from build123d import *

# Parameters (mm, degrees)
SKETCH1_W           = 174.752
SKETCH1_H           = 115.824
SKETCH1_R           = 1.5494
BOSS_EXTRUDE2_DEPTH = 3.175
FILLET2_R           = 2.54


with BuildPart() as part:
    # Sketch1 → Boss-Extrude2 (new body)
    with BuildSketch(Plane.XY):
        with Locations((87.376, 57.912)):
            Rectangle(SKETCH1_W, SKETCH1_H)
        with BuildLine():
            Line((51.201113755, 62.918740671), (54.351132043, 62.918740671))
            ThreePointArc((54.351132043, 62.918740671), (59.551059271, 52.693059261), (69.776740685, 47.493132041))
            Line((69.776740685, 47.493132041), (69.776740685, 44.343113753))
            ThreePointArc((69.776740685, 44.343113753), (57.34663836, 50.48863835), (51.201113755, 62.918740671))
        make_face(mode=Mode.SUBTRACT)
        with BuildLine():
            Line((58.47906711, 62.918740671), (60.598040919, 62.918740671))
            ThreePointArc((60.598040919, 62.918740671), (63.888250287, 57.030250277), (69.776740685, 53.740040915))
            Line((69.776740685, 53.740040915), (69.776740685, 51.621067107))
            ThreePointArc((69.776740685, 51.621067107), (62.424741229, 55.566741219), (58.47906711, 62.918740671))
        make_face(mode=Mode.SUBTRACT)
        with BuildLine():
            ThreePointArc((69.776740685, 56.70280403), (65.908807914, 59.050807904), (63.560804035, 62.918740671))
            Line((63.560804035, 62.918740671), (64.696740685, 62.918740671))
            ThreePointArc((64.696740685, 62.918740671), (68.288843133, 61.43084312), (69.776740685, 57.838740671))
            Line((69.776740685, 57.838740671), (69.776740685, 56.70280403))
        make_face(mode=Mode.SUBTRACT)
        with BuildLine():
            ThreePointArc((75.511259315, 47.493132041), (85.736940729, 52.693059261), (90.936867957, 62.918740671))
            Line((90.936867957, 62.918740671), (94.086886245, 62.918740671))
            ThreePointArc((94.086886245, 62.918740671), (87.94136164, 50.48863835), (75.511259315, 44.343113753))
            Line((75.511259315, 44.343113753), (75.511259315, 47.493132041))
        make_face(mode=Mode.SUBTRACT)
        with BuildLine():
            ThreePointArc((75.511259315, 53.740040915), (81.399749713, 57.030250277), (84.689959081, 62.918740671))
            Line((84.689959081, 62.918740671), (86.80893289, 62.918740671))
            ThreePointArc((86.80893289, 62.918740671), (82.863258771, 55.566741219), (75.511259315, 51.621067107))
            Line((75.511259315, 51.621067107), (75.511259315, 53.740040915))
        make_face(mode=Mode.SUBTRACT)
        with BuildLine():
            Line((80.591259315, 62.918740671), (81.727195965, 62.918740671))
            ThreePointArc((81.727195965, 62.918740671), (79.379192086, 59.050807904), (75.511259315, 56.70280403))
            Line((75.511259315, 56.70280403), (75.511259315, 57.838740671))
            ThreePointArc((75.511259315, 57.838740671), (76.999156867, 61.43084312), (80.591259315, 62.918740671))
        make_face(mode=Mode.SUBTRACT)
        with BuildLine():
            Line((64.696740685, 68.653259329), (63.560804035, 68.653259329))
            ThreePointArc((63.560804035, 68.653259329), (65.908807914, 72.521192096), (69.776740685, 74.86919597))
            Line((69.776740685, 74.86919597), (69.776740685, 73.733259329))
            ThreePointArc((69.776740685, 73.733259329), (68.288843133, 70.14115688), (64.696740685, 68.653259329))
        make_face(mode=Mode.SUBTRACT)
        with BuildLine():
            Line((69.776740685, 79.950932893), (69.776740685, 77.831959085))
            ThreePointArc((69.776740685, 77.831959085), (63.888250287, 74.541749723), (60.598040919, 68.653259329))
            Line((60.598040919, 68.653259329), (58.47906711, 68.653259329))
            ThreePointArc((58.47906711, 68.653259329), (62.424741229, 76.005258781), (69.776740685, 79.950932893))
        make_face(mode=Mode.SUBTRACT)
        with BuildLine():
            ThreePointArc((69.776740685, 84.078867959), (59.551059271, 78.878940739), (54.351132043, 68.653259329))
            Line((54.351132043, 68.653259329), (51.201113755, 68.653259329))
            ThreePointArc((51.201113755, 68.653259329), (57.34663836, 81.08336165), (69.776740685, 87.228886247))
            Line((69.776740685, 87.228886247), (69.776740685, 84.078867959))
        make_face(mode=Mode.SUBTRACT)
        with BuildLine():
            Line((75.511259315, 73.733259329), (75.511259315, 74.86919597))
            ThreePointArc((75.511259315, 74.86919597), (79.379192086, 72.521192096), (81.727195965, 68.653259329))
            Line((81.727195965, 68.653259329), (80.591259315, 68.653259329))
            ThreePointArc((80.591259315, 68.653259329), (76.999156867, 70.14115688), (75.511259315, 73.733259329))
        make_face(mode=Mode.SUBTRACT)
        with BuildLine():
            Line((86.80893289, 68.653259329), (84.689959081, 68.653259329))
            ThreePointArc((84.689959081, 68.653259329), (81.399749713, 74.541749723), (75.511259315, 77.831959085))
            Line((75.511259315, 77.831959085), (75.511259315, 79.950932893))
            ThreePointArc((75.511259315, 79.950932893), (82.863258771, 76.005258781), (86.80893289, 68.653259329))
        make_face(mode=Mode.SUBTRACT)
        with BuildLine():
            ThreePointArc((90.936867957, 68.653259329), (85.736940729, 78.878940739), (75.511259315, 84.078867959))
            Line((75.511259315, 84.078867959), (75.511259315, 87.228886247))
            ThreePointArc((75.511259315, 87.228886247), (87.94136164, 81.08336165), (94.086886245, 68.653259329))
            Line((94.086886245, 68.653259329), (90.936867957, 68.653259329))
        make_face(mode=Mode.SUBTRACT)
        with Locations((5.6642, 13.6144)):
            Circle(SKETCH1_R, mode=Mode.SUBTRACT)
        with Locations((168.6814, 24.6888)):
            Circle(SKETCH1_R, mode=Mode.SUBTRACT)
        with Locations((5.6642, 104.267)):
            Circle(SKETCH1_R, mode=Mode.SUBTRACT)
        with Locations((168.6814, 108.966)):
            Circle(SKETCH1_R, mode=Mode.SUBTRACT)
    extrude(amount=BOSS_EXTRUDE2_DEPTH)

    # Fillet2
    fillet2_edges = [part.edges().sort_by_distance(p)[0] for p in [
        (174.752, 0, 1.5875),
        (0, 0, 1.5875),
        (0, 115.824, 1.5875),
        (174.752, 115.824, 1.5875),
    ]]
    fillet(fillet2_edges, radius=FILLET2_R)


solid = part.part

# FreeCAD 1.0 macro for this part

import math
import FreeCAD as App
import Part
import Sketcher
from FreeCAD import Vector
Q = App.Units.Quantity


def edges_at(feature, points):
    """Names of the edges that pass closest to the given points."""
    edges = feature.Shape.Edges
    near = lambda p: min(range(len(edges)), key=lambda i: edges[i].distToShape(Part.Vertex(*p))[0])
    return sorted({f"Edge{near(p) + 1}" for p in points})

doc = App.newDocument("Part")
params = doc.addObject("Spreadsheet::Sheet", "Params")
for row, (alias, value) in enumerate([
    ("sketch1_radius", "0.2 in"),
    ("sketch1_radius2", "0.2 in"),
    ("sketch1_radius3", "0.2 in"),
    ("sketch1_radius4", "0.2 in"),
    ("sketch1_diameter", "0.122 in"),
    ("pad1_length", "0.125 in"),
    ("fillet_radius", "0.1 in"),
], start=1):
    params.set(f"A{row}", alias)
    params.set(f"B{row}", "=" + value)
    params.setAlias(f"B{row}", alias)

body = doc.addObject("PartDesign::Body", "Body")

sketch1 = doc.addObject("Sketcher::SketchObject", "Sketch")
body.addObject(sketch1)
sketch1.AttachmentSupport = (doc.XY_Plane, [""])
sketch1.MapMode = "FlatFace"
sketch1.addGeometry([
    Part.LineSegment(Vector(0, 115.824, 0), Vector(0, 0, 0)),
    Part.LineSegment(Vector(0, 0, 0), Vector(174.752, 0, 0)),
    Part.LineSegment(Vector(174.752, 0, 0), Vector(174.752, 115.824, 0)),
    Part.LineSegment(Vector(174.752, 115.824, 0), Vector(0, 115.824, 0)),
    Part.Circle(Vector(5.6642, 13.6144, 0), Vector(0, 0, 1), 1.5494),
    Part.ArcOfCircle(Part.Circle(Vector(72.644, 65.786, 0), Vector(0, 0, 1), 21.633736), math.radians(-172.383809), math.radians(-97.616191)),
    Part.LineSegment(Vector(51.201114, 62.918741, 0), Vector(54.351132, 62.918741, 0)),
    Part.ArcOfCircle(Part.Circle(Vector(72.644, 65.786, 0), Vector(0, 0, 1), 18.516214), math.radians(-171.091829), math.radians(-98.908171)),
    Part.LineSegment(Vector(69.776741, 47.493132, 0), Vector(69.776741, 44.343114, 0)),
    Part.ArcOfCircle(Part.Circle(Vector(72.644, 65.786, 0), Vector(0, 0, 1), 14.452214), math.radians(-168.556832), math.radians(-101.443168)),
    Part.LineSegment(Vector(58.479067, 62.918741, 0), Vector(60.598041, 62.918741, 0)),
    Part.ArcOfCircle(Part.Circle(Vector(72.644, 65.786, 0), Vector(0, 0, 1), 12.3825), math.radians(-166.611221), math.radians(-103.388779)),
    Part.LineSegment(Vector(69.776741, 53.740041, 0), Vector(69.776741, 51.621067, 0)),
    Part.LineSegment(Vector(75.511259, 44.343114, 0), Vector(75.511259, 47.493132, 0)),
    Part.ArcOfCircle(Part.Circle(Vector(72.644, 65.786, 0), Vector(0, 0, 1), 18.516214), math.radians(-81.091829), math.radians(-8.908171)),
    Part.LineSegment(Vector(90.936868, 62.918741, 0), Vector(94.086886, 62.918741, 0)),
    Part.ArcOfCircle(Part.Circle(Vector(72.644, 65.786, 0), Vector(0, 0, 1), 21.633736), math.radians(-82.383809), math.radians(-7.616191)),
    Part.LineSegment(Vector(69.776741, 57.838741, 0), Vector(69.776741, 56.702804, 0)),
    Part.ArcOfCircle(Part.Circle(Vector(72.644, 65.786, 0), Vector(0, 0, 1), 9.525), math.radians(-162.480847), math.radians(-107.519153)),
    Part.LineSegment(Vector(63.560804, 62.918741, 0), Vector(64.696741, 62.918741, 0)),
    Part.ArcOfCircle(Part.Circle(Vector(64.696741, 57.838741, 0), Vector(0, 0, 1), 5.08), math.radians(0), math.radians(90)),
    Part.LineSegment(Vector(75.511259, 51.621067, 0), Vector(75.511259, 53.740041, 0)),
    Part.ArcOfCircle(Part.Circle(Vector(72.644, 65.786, 0), Vector(0, 0, 1), 12.3825), math.radians(-76.611221), math.radians(-13.388779)),
    Part.LineSegment(Vector(84.689959, 62.918741, 0), Vector(86.808933, 62.918741, 0)),
    Part.ArcOfCircle(Part.Circle(Vector(72.644, 65.786, 0), Vector(0, 0, 1), 14.452214), math.radians(-78.556832), math.radians(-11.443168)),
    Part.ArcOfCircle(Part.Circle(Vector(80.591259, 57.838741, 0), Vector(0, 0, 1), 5.08), math.radians(90), math.radians(180)),
    Part.LineSegment(Vector(80.591259, 62.918741, 0), Vector(81.727196, 62.918741, 0)),
    Part.ArcOfCircle(Part.Circle(Vector(72.644, 65.786, 0), Vector(0, 0, 1), 9.525), math.radians(-72.480847), math.radians(-17.519153)),
    Part.LineSegment(Vector(75.511259, 56.702804, 0), Vector(75.511259, 57.838741, 0)),
    Part.Circle(Vector(168.6814, 24.6888, 0), Vector(0, 0, 1), 1.5494),
    Part.ArcOfCircle(Part.Circle(Vector(64.696741, 73.733259, 0), Vector(0, 0, 1), 5.08), math.radians(-90), math.radians(0)),
    Part.LineSegment(Vector(64.696741, 68.653259, 0), Vector(63.560804, 68.653259, 0)),
    Part.ArcOfCircle(Part.Circle(Vector(72.644, 65.786, 0), Vector(0, 0, 1), 9.525), math.radians(107.519153), math.radians(162.480847)),
    Part.LineSegment(Vector(69.776741, 74.869196, 0), Vector(69.776741, 73.733259, 0)),
    Part.ArcOfCircle(Part.Circle(Vector(80.591259, 73.733259, 0), Vector(0, 0, 1), 5.08), math.radians(180), math.radians(270)),
    Part.LineSegment(Vector(75.511259, 73.733259, 0), Vector(75.511259, 74.869196, 0)),
    Part.ArcOfCircle(Part.Circle(Vector(72.644, 65.786, 0), Vector(0, 0, 1), 9.525), math.radians(17.519153), math.radians(72.480847)),
    Part.LineSegment(Vector(81.727196, 68.653259, 0), Vector(80.591259, 68.653259, 0)),
    Part.ArcOfCircle(Part.Circle(Vector(72.644, 65.786, 0), Vector(0, 0, 1), 14.452214), math.radians(101.443168), math.radians(168.556832)),
    Part.LineSegment(Vector(69.776741, 79.950933, 0), Vector(69.776741, 77.831959, 0)),
    Part.ArcOfCircle(Part.Circle(Vector(72.644, 65.786, 0), Vector(0, 0, 1), 12.3825), math.radians(103.388779), math.radians(166.611221)),
    Part.LineSegment(Vector(60.598041, 68.653259, 0), Vector(58.479067, 68.653259, 0)),
    Part.LineSegment(Vector(69.776741, 87.228886, 0), Vector(69.776741, 84.078868, 0)),
    Part.ArcOfCircle(Part.Circle(Vector(72.644, 65.786, 0), Vector(0, 0, 1), 18.516214), math.radians(98.908171), math.radians(171.091829)),
    Part.LineSegment(Vector(54.351132, 68.653259, 0), Vector(51.201114, 68.653259, 0)),
    Part.ArcOfCircle(Part.Circle(Vector(72.644, 65.786, 0), Vector(0, 0, 1), 21.633736), math.radians(97.616191), math.radians(172.383809)),
    Part.ArcOfCircle(Part.Circle(Vector(72.644, 65.786, 0), Vector(0, 0, 1), 14.452214), math.radians(11.443168), math.radians(78.556832)),
    Part.LineSegment(Vector(86.808933, 68.653259, 0), Vector(84.689959, 68.653259, 0)),
    Part.ArcOfCircle(Part.Circle(Vector(72.644, 65.786, 0), Vector(0, 0, 1), 12.3825), math.radians(13.388779), math.radians(76.611221)),
    Part.LineSegment(Vector(75.511259, 77.831959, 0), Vector(75.511259, 79.950933, 0)),
    Part.LineSegment(Vector(94.086886, 68.653259, 0), Vector(90.936868, 68.653259, 0)),
    Part.ArcOfCircle(Part.Circle(Vector(72.644, 65.786, 0), Vector(0, 0, 1), 18.516214), math.radians(8.908171), math.radians(81.091829)),
    Part.LineSegment(Vector(75.511259, 84.078868, 0), Vector(75.511259, 87.228886, 0)),
    Part.ArcOfCircle(Part.Circle(Vector(72.644, 65.786, 0), Vector(0, 0, 1), 21.633736), math.radians(7.616191), math.radians(82.383809)),
    Part.Circle(Vector(5.6642, 104.267, 0), Vector(0, 0, 1), 1.5494),
    Part.Circle(Vector(168.6814, 108.966, 0), Vector(0, 0, 1), 1.5494),
], False)
sketch1.addConstraint([
    Sketcher.Constraint("Coincident", 0, 2, 1, 1),
    Sketcher.Constraint("Coincident", 1, 2, 2, 1),
    Sketcher.Constraint("Coincident", 2, 2, 3, 1),
    Sketcher.Constraint("Coincident", 3, 2, 0, 1),
    Sketcher.Constraint("Coincident", 5, 1, 6, 1),
    Sketcher.Constraint("Coincident", 6, 2, 7, 1),
    Sketcher.Constraint("Coincident", 7, 2, 8, 1),
    Sketcher.Constraint("Coincident", 8, 2, 5, 2),
    Sketcher.Constraint("Coincident", 9, 1, 10, 1),
    Sketcher.Constraint("Coincident", 10, 2, 11, 1),
    Sketcher.Constraint("Coincident", 11, 2, 12, 1),
    Sketcher.Constraint("Coincident", 12, 2, 9, 2),
    Sketcher.Constraint("Coincident", 13, 2, 14, 1),
    Sketcher.Constraint("Coincident", 14, 2, 15, 1),
    Sketcher.Constraint("Coincident", 15, 2, 16, 2),
    Sketcher.Constraint("Coincident", 16, 1, 13, 1),
    Sketcher.Constraint("Coincident", 17, 2, 18, 2),
    Sketcher.Constraint("Coincident", 18, 1, 19, 1),
    Sketcher.Constraint("Coincident", 19, 2, 20, 2),
    Sketcher.Constraint("Coincident", 20, 1, 17, 1),
    Sketcher.Constraint("Coincident", 21, 2, 22, 1),
    Sketcher.Constraint("Coincident", 22, 2, 23, 1),
    Sketcher.Constraint("Coincident", 23, 2, 24, 2),
    Sketcher.Constraint("Coincident", 24, 1, 21, 1),
    Sketcher.Constraint("Coincident", 25, 1, 26, 1),
    Sketcher.Constraint("Coincident", 26, 2, 27, 2),
    Sketcher.Constraint("Coincident", 27, 1, 28, 1),
    Sketcher.Constraint("Coincident", 28, 2, 25, 2),
    Sketcher.Constraint("Coincident", 30, 1, 31, 1),
    Sketcher.Constraint("Coincident", 31, 2, 32, 2),
    Sketcher.Constraint("Coincident", 32, 1, 33, 1),
    Sketcher.Constraint("Coincident", 33, 2, 30, 2),
    Sketcher.Constraint("Coincident", 34, 1, 35, 1),
    Sketcher.Constraint("Coincident", 35, 2, 36, 2),
    Sketcher.Constraint("Coincident", 36, 1, 37, 1),
    Sketcher.Constraint("Coincident", 37, 2, 34, 2),
    Sketcher.Constraint("Coincident", 38, 1, 39, 1),
    Sketcher.Constraint("Coincident", 39, 2, 40, 1),
    Sketcher.Constraint("Coincident", 40, 2, 41, 1),
    Sketcher.Constraint("Coincident", 41, 2, 38, 2),
    Sketcher.Constraint("Coincident", 42, 2, 43, 1),
    Sketcher.Constraint("Coincident", 43, 2, 44, 1),
    Sketcher.Constraint("Coincident", 44, 2, 45, 2),
    Sketcher.Constraint("Coincident", 45, 1, 42, 1),
    Sketcher.Constraint("Coincident", 46, 1, 47, 1),
    Sketcher.Constraint("Coincident", 47, 2, 48, 1),
    Sketcher.Constraint("Coincident", 48, 2, 49, 1),
    Sketcher.Constraint("Coincident", 49, 2, 46, 2),
    Sketcher.Constraint("Coincident", 50, 2, 51, 1),
    Sketcher.Constraint("Coincident", 51, 2, 52, 1),
    Sketcher.Constraint("Coincident", 52, 2, 53, 2),
    Sketcher.Constraint("Coincident", 53, 1, 50, 1),
    Sketcher.Constraint("Vertical", 0),
    Sketcher.Constraint("Horizontal", 1),
    Sketcher.Constraint("Vertical", 2),
    Sketcher.Constraint("Horizontal", 3),
    Sketcher.Constraint("Horizontal", 6),
    Sketcher.Constraint("Vertical", 8),
    Sketcher.Constraint("Horizontal", 10),
    Sketcher.Constraint("Vertical", 12),
    Sketcher.Constraint("Vertical", 13),
    Sketcher.Constraint("Horizontal", 15),
    Sketcher.Constraint("Vertical", 17),
    Sketcher.Constraint("Horizontal", 19),
    Sketcher.Constraint("Vertical", 21),
    Sketcher.Constraint("Horizontal", 23),
    Sketcher.Constraint("Horizontal", 26),
    Sketcher.Constraint("Vertical", 28),
    Sketcher.Constraint("Horizontal", 31),
    Sketcher.Constraint("Vertical", 33),
    Sketcher.Constraint("Vertical", 35),
    Sketcher.Constraint("Horizontal", 37),
    Sketcher.Constraint("Vertical", 39),
    Sketcher.Constraint("Horizontal", 41),
    Sketcher.Constraint("Vertical", 42),
    Sketcher.Constraint("Horizontal", 44),
    Sketcher.Constraint("Horizontal", 47),
    Sketcher.Constraint("Vertical", 49),
    Sketcher.Constraint("Horizontal", 50),
    Sketcher.Constraint("Vertical", 52),
    Sketcher.Constraint("Coincident", 0, 2, -1, 1),
    Sketcher.Constraint("Coincident", 7, 3, 5, 3),
    Sketcher.Constraint("Coincident", 9, 3, 5, 3),
    Sketcher.Constraint("Coincident", 11, 3, 5, 3),
    Sketcher.Constraint("Coincident", 14, 3, 5, 3),
    Sketcher.Constraint("Coincident", 16, 3, 5, 3),
    Sketcher.Constraint("Coincident", 18, 3, 5, 3),
    Sketcher.Constraint("Coincident", 22, 3, 5, 3),
    Sketcher.Constraint("Coincident", 24, 3, 5, 3),
    Sketcher.Constraint("Coincident", 27, 3, 5, 3),
    Sketcher.Constraint("Coincident", 32, 3, 5, 3),
    Sketcher.Constraint("Coincident", 36, 3, 5, 3),
    Sketcher.Constraint("Coincident", 38, 3, 5, 3),
    Sketcher.Constraint("Coincident", 40, 3, 5, 3),
    Sketcher.Constraint("Coincident", 43, 3, 5, 3),
    Sketcher.Constraint("Coincident", 45, 3, 5, 3),
    Sketcher.Constraint("Coincident", 46, 3, 5, 3),
    Sketcher.Constraint("Coincident", 48, 3, 5, 3),
    Sketcher.Constraint("Coincident", 51, 3, 5, 3),
    Sketcher.Constraint("Coincident", 53, 3, 5, 3),
    Sketcher.Constraint("Radius", 20, Q("0.2 in")),
    Sketcher.Constraint("Radius", 25, Q("0.2 in")),
    Sketcher.Constraint("Radius", 30, Q("0.2 in")),
    Sketcher.Constraint("Radius", 34, Q("0.2 in")),
    Sketcher.Constraint("Diameter", 4, Q("0.122 in")),
    Sketcher.Constraint("Diameter", 29, Q("0.122 in")),
    Sketcher.Constraint("Diameter", 54, Q("0.122 in")),
    Sketcher.Constraint("Diameter", 55, Q("0.122 in")),
    Sketcher.Constraint("Radius", 18, Q("0.375 in")),
    Sketcher.Constraint("Radius", 27, Q("0.375 in")),
    Sketcher.Constraint("Radius", 32, Q("0.375 in")),
    Sketcher.Constraint("Radius", 36, Q("0.375 in")),
    Sketcher.Constraint("DistanceX", 1, 1, 1, 2, Q("6.88 in")),
    Sketcher.Constraint("DistanceY", 0, 2, 0, 1, Q("4.56 in")),
    Sketcher.Constraint("Radius", 11, Q("0.4875 in")),
    Sketcher.Constraint("Radius", 22, Q("0.4875 in")),
    Sketcher.Constraint("Radius", 40, Q("0.4875 in")),
    Sketcher.Constraint("Radius", 48, Q("0.4875 in")),
    Sketcher.Constraint("DistanceX", -1, 1, 5, 3, Q("2.86 in")),
    Sketcher.Constraint("DistanceY", -1, 1, 5, 3, Q("2.59 in")),
    Sketcher.Constraint("DistanceY", -1, 1, 55, 3, Q("4.29 in")),
    Sketcher.Constraint("DistanceX", -1, 1, 4, 3, Q("0.223 in")),
    Sketcher.Constraint("DistanceY", -1, 1, 4, 3, Q("0.536 in")),
    Sketcher.Constraint("DistanceX", -1, 1, 29, 3, Q("6.641 in")),
    Sketcher.Constraint("DistanceY", -1, 1, 29, 3, Q("0.972 in")),
    Sketcher.Constraint("DistanceX", -1, 1, 54, 3, Q("0.223 in")),
    Sketcher.Constraint("DistanceY", -1, 1, 54, 3, Q("4.105 in")),
    Sketcher.Constraint("DistanceX", -1, 1, 55, 3, Q("6.641 in")),
    Sketcher.Constraint("Radius", 5, 21.633736),
    Sketcher.Constraint("Radius", 7, 18.516214),
    Sketcher.Constraint("Radius", 9, 14.452214),
    Sketcher.Constraint("Radius", 14, 18.516214),
    Sketcher.Constraint("Radius", 16, 21.633736),
    Sketcher.Constraint("Radius", 24, 14.452214),
    Sketcher.Constraint("Radius", 38, 14.452214),
    Sketcher.Constraint("Radius", 43, 18.516214),
    Sketcher.Constraint("Radius", 45, 21.633736),
    Sketcher.Constraint("Radius", 46, 14.452214),
    Sketcher.Constraint("Radius", 51, 18.516214),
    Sketcher.Constraint("Radius", 53, 21.633736),
    Sketcher.Constraint("DistanceX", 6, 1, 6, 2, 3.150018),
    Sketcher.Constraint("DistanceX", 15, 1, 15, 2, 3.150018),
    Sketcher.Constraint("DistanceX", 44, 2, 44, 1, 3.150018),
    Sketcher.Constraint("DistanceX", 50, 2, 50, 1, 3.150018),
    Sketcher.Constraint("DistanceY", 8, 2, 8, 1, 3.150018),
    Sketcher.Constraint("DistanceY", 13, 1, 13, 2, 3.150018),
    Sketcher.Constraint("DistanceY", 42, 2, 42, 1, 3.150018),
    Sketcher.Constraint("DistanceY", 52, 1, 52, 2, 3.150018),
    Sketcher.Constraint("DistanceX", 10, 1, 10, 2, 2.118974),
    Sketcher.Constraint("DistanceX", 19, 1, 19, 2, 1.135937),
    Sketcher.Constraint("DistanceX", 23, 1, 23, 2, 2.118974),
    Sketcher.Constraint("DistanceX", 26, 1, 26, 2, 1.135937),
    Sketcher.Constraint("DistanceX", 31, 2, 31, 1, 1.135937),
    Sketcher.Constraint("DistanceX", 37, 2, 37, 1, 1.135937),
    Sketcher.Constraint("DistanceX", 41, 2, 41, 1, 2.118974),
    Sketcher.Constraint("DistanceX", 47, 2, 47, 1, 2.118974),
    Sketcher.Constraint("DistanceY", 12, 2, 12, 1, 2.118974),
    Sketcher.Constraint("DistanceY", 17, 2, 17, 1, 1.135937),
    Sketcher.Constraint("DistanceY", 21, 1, 21, 2, 2.118974),
    Sketcher.Constraint("DistanceY", 28, 1, 28, 2, 1.135937),
    Sketcher.Constraint("DistanceY", 33, 2, 33, 1, 1.135937),
    Sketcher.Constraint("DistanceY", 35, 1, 35, 2, 1.135937),
    Sketcher.Constraint("DistanceY", 39, 2, 39, 1, 2.118974),
    Sketcher.Constraint("DistanceY", 49, 1, 49, 2, 2.118974),
    Sketcher.Constraint("DistanceX", -1, 1, 20, 3, 64.696741),
    Sketcher.Constraint("DistanceY", -1, 1, 20, 3, 57.838741),
    Sketcher.Constraint("DistanceX", -1, 1, 25, 3, 80.591259),
    Sketcher.Constraint("DistanceY", -1, 1, 25, 3, 57.838741),
    Sketcher.Constraint("DistanceX", -1, 1, 30, 3, 64.696741),
    Sketcher.Constraint("DistanceY", -1, 1, 30, 3, 73.733259),
    Sketcher.Constraint("DistanceX", -1, 1, 34, 3, 80.591259),
    Sketcher.Constraint("DistanceY", -1, 1, 34, 3, 73.733259),
])
sketch1.setExpression("Constraints[100]", "Params.sketch1_radius")
sketch1.setExpression("Constraints[101]", "Params.sketch1_radius2")
sketch1.setExpression("Constraints[102]", "Params.sketch1_radius3")
sketch1.setExpression("Constraints[103]", "Params.sketch1_radius4")
sketch1.setExpression("Constraints[104]", "Params.sketch1_diameter")
pad1 = doc.addObject("PartDesign::Pad", "Pad")
body.addObject(pad1)
pad1.Profile = sketch1
pad1.setExpression("Length", "Params.pad1_length")
doc.recompute()

fillet = doc.addObject("PartDesign::Fillet", "Fillet")
body.addObject(fillet)
fillet.Base = (pad1, edges_at(pad1, [
    (174.752, 0, 1.587),
    (0, 0, 1.587),
    (0, 115.824, 1.587),
    (174.752, 115.824, 1.587),
]))
fillet.setExpression("Radius", "Params.fillet_radius")

doc.recompute()
